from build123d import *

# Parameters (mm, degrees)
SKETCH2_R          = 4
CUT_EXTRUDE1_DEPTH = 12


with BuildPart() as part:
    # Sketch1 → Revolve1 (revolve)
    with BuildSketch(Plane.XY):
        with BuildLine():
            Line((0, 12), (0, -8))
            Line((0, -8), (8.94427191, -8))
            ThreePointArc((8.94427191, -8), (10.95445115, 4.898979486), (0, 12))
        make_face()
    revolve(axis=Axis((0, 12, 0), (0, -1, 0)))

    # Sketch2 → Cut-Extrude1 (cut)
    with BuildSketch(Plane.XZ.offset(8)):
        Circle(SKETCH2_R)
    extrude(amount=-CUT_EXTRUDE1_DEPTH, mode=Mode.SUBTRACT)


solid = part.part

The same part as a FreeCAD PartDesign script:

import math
import FreeCAD as App
import Part
import Sketcher

doc = App.newDocument("Part")
body = doc.addObject("PartDesign::Body", "Body")

sketch1 = body.newObject("Sketcher::SketchObject", "Sketch")
sketch1.AttachmentSupport = (doc.getObject("XY_Plane"), [""])
sketch1.MapMode = "FlatFace"
sketch1.addGeometry(Part.LineSegment(App.Vector(0, 12, 0), App.Vector(0, -8, 0)), False)
sketch1.addGeometry(Part.LineSegment(App.Vector(0, -8, 0), App.Vector(9, -8, 0)), False)
sketch1.addGeometry(Part.ArcOfCircle(Part.Circle(App.Vector(0, 0, 0), App.Vector(0, 0, 1), 12), math.radians(-42), math.radians(90)), False)
sketch1.addConstraint(Sketcher.Constraint("Coincident", 0, 2, 1, 1))
sketch1.addConstraint(Sketcher.Constraint("Coincident", 1, 2, 2, 1))
sketch1.addConstraint(Sketcher.Constraint("Coincident", 2, 2, 0, 1))
sketch1.addConstraint(Sketcher.Constraint("Vertical", 0))
sketch1.addConstraint(Sketcher.Constraint("Horizontal", 1))
sketch1.addConstraint(Sketcher.Constraint("Coincident", 2, 3, -1, 1))
sketch1.addConstraint(Sketcher.Constraint("PointOnObject", 0, 2, -2))
sketch1.addConstraint(Sketcher.Constraint("Radius", 2, 12.0))
sketch1.addConstraint(Sketcher.Constraint("DistanceY", 0, 2, 0, 1, 20.0))
revolution = body.newObject("PartDesign::Revolution", "Revolution")
revolution.Profile = sketch1
revolution.ReferenceAxis = (sketch1, ["V_Axis"])
revolution.Angle = 360

sketch2 = body.newObject("Sketcher::SketchObject", "Sketch001")
sketch2.AttachmentSupport = (doc.getObject("XZ_Plane"), [""])
sketch2.MapMode = "FlatFace"
sketch2.AttachmentOffset = App.Placement(App.Vector(0, 0, 8), App.Rotation())
sketch2.addGeometry(Part.Circle(App.Vector(0, 0, 0), App.Vector(0, 0, 1), 4), False)
sketch2.addConstraint(Sketcher.Constraint("Coincident", 0, 3, -1, 1))
sketch2.addConstraint(Sketcher.Constraint("Diameter", 0, 8.0))
pocket1 = body.newObject("PartDesign::Pocket", "Pocket")
pocket1.Profile = sketch2
pocket1.Length = 12

doc.recompute()
